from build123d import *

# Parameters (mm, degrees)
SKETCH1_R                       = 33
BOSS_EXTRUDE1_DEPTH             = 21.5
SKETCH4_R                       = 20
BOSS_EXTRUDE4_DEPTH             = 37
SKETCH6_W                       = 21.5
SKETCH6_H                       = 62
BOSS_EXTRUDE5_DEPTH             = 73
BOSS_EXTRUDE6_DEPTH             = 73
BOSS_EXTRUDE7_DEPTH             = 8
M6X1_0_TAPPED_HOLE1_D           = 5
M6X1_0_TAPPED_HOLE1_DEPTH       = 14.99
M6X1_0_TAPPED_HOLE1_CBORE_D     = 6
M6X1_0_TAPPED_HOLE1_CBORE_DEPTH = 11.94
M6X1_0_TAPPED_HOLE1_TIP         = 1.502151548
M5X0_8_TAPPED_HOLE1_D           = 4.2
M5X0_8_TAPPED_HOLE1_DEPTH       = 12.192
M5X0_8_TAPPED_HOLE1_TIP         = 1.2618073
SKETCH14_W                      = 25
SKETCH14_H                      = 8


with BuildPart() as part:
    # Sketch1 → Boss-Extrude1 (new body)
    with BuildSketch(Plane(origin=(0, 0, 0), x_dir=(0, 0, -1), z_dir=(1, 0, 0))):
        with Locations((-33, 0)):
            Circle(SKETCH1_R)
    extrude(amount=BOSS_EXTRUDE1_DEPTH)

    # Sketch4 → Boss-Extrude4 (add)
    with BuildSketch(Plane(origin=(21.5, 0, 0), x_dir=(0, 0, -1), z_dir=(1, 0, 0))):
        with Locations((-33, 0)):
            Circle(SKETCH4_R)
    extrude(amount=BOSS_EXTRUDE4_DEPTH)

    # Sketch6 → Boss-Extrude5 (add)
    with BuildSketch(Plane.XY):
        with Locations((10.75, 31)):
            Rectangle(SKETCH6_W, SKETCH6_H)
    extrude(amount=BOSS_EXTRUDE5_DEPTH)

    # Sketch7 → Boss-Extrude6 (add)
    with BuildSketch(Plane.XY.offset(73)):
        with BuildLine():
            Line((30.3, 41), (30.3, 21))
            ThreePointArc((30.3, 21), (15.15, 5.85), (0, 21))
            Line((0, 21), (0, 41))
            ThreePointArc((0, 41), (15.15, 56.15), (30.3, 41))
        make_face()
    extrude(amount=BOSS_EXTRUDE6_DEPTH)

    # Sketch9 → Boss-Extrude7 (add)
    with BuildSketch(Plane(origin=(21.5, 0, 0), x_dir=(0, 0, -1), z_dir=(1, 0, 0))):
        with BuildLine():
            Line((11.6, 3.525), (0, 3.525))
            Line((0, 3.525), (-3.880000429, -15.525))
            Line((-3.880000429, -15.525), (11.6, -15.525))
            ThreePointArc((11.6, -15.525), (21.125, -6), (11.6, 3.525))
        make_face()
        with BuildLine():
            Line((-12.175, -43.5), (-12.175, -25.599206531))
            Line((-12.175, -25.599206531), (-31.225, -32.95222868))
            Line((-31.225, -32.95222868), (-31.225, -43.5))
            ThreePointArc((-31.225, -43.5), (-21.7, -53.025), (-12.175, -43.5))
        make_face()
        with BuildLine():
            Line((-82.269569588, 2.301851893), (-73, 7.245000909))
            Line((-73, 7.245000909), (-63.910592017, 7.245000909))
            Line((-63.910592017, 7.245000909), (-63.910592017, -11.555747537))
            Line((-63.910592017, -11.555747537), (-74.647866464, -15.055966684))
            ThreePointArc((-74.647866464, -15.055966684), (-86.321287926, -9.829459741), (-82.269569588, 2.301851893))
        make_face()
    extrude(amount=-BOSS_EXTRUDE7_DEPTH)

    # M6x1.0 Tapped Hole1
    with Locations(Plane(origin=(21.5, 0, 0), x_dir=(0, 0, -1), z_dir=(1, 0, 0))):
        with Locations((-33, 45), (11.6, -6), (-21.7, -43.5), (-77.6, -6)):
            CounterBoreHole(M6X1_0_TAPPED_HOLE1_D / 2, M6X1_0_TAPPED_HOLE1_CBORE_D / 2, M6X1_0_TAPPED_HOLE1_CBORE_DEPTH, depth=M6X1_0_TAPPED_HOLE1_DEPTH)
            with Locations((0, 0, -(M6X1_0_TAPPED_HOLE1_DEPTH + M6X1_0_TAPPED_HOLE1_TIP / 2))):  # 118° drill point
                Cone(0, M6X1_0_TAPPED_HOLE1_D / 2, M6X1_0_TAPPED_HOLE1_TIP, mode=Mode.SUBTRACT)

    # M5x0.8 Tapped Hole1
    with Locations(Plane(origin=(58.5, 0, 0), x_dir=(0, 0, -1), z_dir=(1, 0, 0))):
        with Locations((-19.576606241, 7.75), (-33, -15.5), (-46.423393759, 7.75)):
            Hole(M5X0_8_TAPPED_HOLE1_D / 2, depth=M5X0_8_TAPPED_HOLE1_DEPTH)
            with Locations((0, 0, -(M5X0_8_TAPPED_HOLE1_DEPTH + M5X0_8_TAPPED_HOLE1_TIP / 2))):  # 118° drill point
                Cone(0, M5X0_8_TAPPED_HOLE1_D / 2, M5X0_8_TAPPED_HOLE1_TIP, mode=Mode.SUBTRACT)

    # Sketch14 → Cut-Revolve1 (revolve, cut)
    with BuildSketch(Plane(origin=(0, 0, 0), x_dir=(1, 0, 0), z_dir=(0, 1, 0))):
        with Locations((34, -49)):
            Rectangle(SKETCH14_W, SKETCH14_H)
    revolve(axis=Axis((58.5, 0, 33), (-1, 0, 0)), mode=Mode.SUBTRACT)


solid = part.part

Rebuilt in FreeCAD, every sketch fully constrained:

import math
import FreeCAD as App
import Part
import Sketcher
from FreeCAD import Vector
Q = App.Units.Quantity

doc = App.newDocument("Part")
body = doc.addObject("PartDesign::Body", "Body")

# Sketch on YZ plane
sketch1 = body.newObject("Sketcher::SketchObject", "Sketch")
sketch1.AttachmentSupport = (doc.getObject("YZ_Plane"), [""])
sketch1.MapMode = "FlatFace"
sketch1.addGeometry(Part.Circle(Vector(0, 33, 0), Vector(0, 0, 1), 33), False)
sketch1.addConstraint([
    Sketcher.Constraint("PointOnObject", 0, 3, -2),
    Sketcher.Constraint("Diameter", 0, Q("66 mm")),
    Sketcher.Constraint("DistanceY", -1, 1, 0, 3, Q("33 mm")),
])
pad1 = body.newObject("PartDesign::Pad", "Pad")
pad1.Profile = sketch1
pad1.Length = 21.5

# Sketch on YZ plane
sketch2 = body.newObject("Sketcher::SketchObject", "Sketch001")
sketch2.AttachmentSupport = (doc.getObject("YZ_Plane"), [""])
sketch2.MapMode = "FlatFace"
sketch2.AttachmentOffset = App.Placement(Vector(0, 0, 21.5), App.Rotation())
sketch2.addGeometry(Part.Circle(Vector(0, 33, 0), Vector(0, 0, 1), 20), False)
sketch2.addConstraint([
    Sketcher.Constraint("PointOnObject", 0, 3, -2),
    Sketcher.Constraint("Diameter", 0, Q("40 mm")),
    Sketcher.Constraint("DistanceY", -1, 1, 0, 3, Q("33 mm")),
])
pad2 = body.newObject("PartDesign::Pad", "Pad001")
pad2.Profile = sketch2
pad2.Length = 37

# Sketch on XY plane
sketch3 = body.newObject("Sketcher::SketchObject", "Sketch002")
sketch3.AttachmentSupport = (doc.getObject("XY_Plane"), [""])
sketch3.MapMode = "FlatFace"
sketch3.addGeometry([
    Part.LineSegment(Vector(0, 62, 0), Vector(0, 0, 0)),
    Part.LineSegment(Vector(0, 0, 0), Vector(21.5, 0, 0)),
    Part.LineSegment(Vector(21.5, 0, 0), Vector(21.5, 62, 0)),
    Part.LineSegment(Vector(21.5, 62, 0), Vector(0, 62, 0)),
], False)
sketch3.addConstraint([
    Sketcher.Constraint("Coincident", 0, 2, 1, 1),
    Sketcher.Constraint("Coincident", 1, 2, 2, 1),
    Sketcher.Constraint("Coincident", 2, 2, 3, 1),
    Sketcher.Constraint("Coincident", 3, 2, 0, 1),
    Sketcher.Constraint("Vertical", 0),
    Sketcher.Constraint("Horizontal", 1),
    Sketcher.Constraint("Vertical", 2),
    Sketcher.Constraint("Horizontal", 3),
    Sketcher.Constraint("Coincident", 0, 2, -1, 1),
    Sketcher.Constraint("DistanceY", 0, 2, 0, 1, Q("62 mm")),
    Sketcher.Constraint("DistanceX", 1, 1, 1, 2, Q("21.5 mm")),
])
pad3 = body.newObject("PartDesign::Pad", "Pad002")
pad3.Profile = sketch3
pad3.Length = 73

# Sketch on XY plane
sketch4 = body.newObject("Sketcher::SketchObject", "Sketch003")
sketch4.AttachmentSupport = (doc.getObject("XY_Plane"), [""])
sketch4.MapMode = "FlatFace"
sketch4.AttachmentOffset = App.Placement(Vector(0, 0, 73), App.Rotation())
sketch4.addGeometry([
    Part.LineSegment(Vector(30.3, 21, 0), Vector(30.3, 41, 0)),
    Part.ArcOfCircle(Part.Circle(Vector(15.15, 41, 0), Vector(0, 0, 1), 15.15), math.radians(0), math.radians(180)),
    Part.LineSegment(Vector(0, 41, 0), Vector(0, 21, 0)),
    Part.ArcOfCircle(Part.Circle(Vector(15.15, 21, 0), Vector(0, 0, 1), 15.15), math.radians(180), math.radians(360)),
], False)
sketch4.addConstraint([
    Sketcher.Constraint("Tangent", 0, 2, 1, 1),
    Sketcher.Constraint("Tangent", 1, 2, 2, 1),
    Sketcher.Constraint("Tangent", 2, 2, 3, 1),
    Sketcher.Constraint("Tangent", 3, 2, 0, 1),
    Sketcher.Constraint("Vertical", 0),
    Sketcher.Constraint("Vertical", 2),
    Sketcher.Constraint("PointOnObject", 1, 2, -2),
    Sketcher.Constraint("DistanceY", 0, 1, 0, 2, Q("20 mm")),
    Sketcher.Constraint("Radius", 1, Q("15.15 mm")),
    Sketcher.Constraint("DistanceY", -1, 1, 1, 3, Q("41 mm")),
])
pad4 = body.newObject("PartDesign::Pad", "Pad003")
pad4.Profile = sketch4
pad4.Length = 73

# Sketch on YZ plane
sketch5 = body.newObject("Sketcher::SketchObject", "Sketch004")
sketch5.AttachmentSupport = (doc.getObject("YZ_Plane"), [""])
sketch5.MapMode = "FlatFace"
sketch5.AttachmentOffset = App.Placement(Vector(0, 0, 21.5), App.Rotation())
sketch5.addGeometry([
    Part.LineSegment(Vector(3.525, -11.6, 0), Vector(3.525, 0, 0)),  # 0
    Part.LineSegment(Vector(3.525, 0, 0), Vector(-15.525, 3.88, 0)),  # 1
    Part.LineSegment(Vector(-15.525, 3.88, 0), Vector(-15.525, -11.6, 0)),  # 2
    Part.ArcOfCircle(Part.Circle(Vector(-6, -11.6, 0), Vector(0, 0, 1), 9.525), math.radians(180), math.radians(360)),  # 3
    Part.LineSegment(Vector(-43.5, 12.175, 0), Vector(-25.599207, 12.175, 0)),  # 4
    Part.LineSegment(Vector(-25.599207, 12.175, 0), Vector(-32.952229, 31.225, 0)),  # 5
    Part.LineSegment(Vector(-32.952229, 31.225, 0), Vector(-43.5, 31.225, 0)),  # 6
    Part.ArcOfCircle(Part.Circle(Vector(-43.5, 21.7, 0), Vector(0, 0, 1), 9.525), math.radians(90), math.radians(270)),  # 7
    Part.LineSegment(Vector(7.245001, 73, 0), Vector(2.301852, 82.26957, 0)),  # 8
    Part.ArcOfCircle(Part.Circle(Vector(-6, 77.6, 0), Vector(0, 0, 1), 9.525), math.radians(29.356589), math.radians(198.05533)),  # 9
    Part.LineSegment(Vector(-15.055967, 74.647866, 0), Vector(-11.555748, 63.910592, 0)),  # 10
    Part.LineSegment(Vector(-11.555748, 63.910592, 0), Vector(7.245001, 63.910592, 0)),  # 11
    Part.LineSegment(Vector(7.245001, 63.910592, 0), Vector(7.245001, 73, 0)),  # 12
], False)
sketch5.addConstraint([
    Sketcher.Constraint("Coincident", 0, 2, 1, 1),
    Sketcher.Constraint("Coincident", 1, 2, 2, 1),
    Sketcher.Constraint("Tangent", 2, 2, 3, 1),
    Sketcher.Constraint("Tangent", 3, 2, 0, 1),
    Sketcher.Constraint("Coincident", 4, 2, 5, 1),
    Sketcher.Constraint("Coincident", 5, 2, 6, 1),
    Sketcher.Constraint("Tangent", 6, 2, 7, 1),
    Sketcher.Constraint("Tangent", 7, 2, 4, 1),
    Sketcher.Constraint("Coincident", 8, 2, 9, 1),
    Sketcher.Constraint("Tangent", 9, 2, 10, 1),
    Sketcher.Constraint("Coincident", 10, 2, 11, 1),
    Sketcher.Constraint("Coincident", 11, 2, 12, 1),
    Sketcher.Constraint("Coincident", 12, 2, 8, 1),
    Sketcher.Constraint("Vertical", 0),
    Sketcher.Constraint("Vertical", 2),
    Sketcher.Constraint("Horizontal", 4),
    Sketcher.Constraint("Horizontal", 6),
    Sketcher.Constraint("Horizontal", 11),
    Sketcher.Constraint("Vertical", 12),
    Sketcher.Constraint("Equal", 3, 7),
    Sketcher.Constraint("Equal", 7, 9),
    Sketcher.Constraint("PointOnObject", 0, 2, -1),
    Sketcher.Constraint("Vertical", 3, 3, 9, 3),
    Sketcher.Constraint("DistanceY", 0, 1, 0, 2, Q("11.6 mm")),
    Sketcher.Constraint("DistanceX", 3, 3, -1, 1, Q("6 mm")),
    Sketcher.Constraint("DistanceY", -1, 1, 12, 2, Q("73 mm")),
    Sketcher.Constraint("Radius", 3, Q("9.525 mm")),
    Sketcher.Constraint("DistanceY", 2, 2, 2, 1, Q("15.48 mm")),
    Sketcher.Constraint("DistanceX", 7, 3, -1, 1, Q("43.5 mm")),
    Sketcher.Constraint("DistanceY", -1, 1, 7, 3, Q("21.7 mm")),
    Sketcher.Constraint("DistanceY", -1, 1, 9, 3, Q("77.6 mm")),
    Sketcher.Constraint("DistanceX", -1, 1, 11, 2, Q("7.245001 mm")),
    Sketcher.Constraint("DistanceX", 6, 2, 6, 1, Q("10.547771 mm")),
    Sketcher.Constraint("DistanceX", 11, 1, 11, 2, Q("18.800748 mm")),
    Sketcher.Constraint("DistanceX", 10, 2, 8, 2, Q("13.857599 mm")),
    Sketcher.Constraint("Distance", 5, Q("20.419829 mm")),
    Sketcher.Constraint("DistanceY", 12, 1, 12, 2, Q("9.089408 mm")),
])
pad5 = body.newObject("PartDesign::Pad", "Pad004")
pad5.Profile = sketch5
pad5.Length = 8
pad5.Reversed = True

# Sketch on YZ plane
sketch6 = body.newObject("Sketcher::SketchObject", "Sketch005")
sketch6.AttachmentSupport = (doc.getObject("YZ_Plane"), [""])
sketch6.MapMode = "FlatFace"
sketch6.AttachmentOffset = App.Placement(Vector(0, 0, 21.5), App.Rotation())
sketch6.addGeometry([
    Part.Circle(Vector(45, 33, 0), Vector(0, 0, 1), 2.5),
    Part.Circle(Vector(-6, -11.6, 0), Vector(0, 0, 1), 2.5),
    Part.Circle(Vector(-43.5, 21.7, 0), Vector(0, 0, 1), 2.5),
    Part.Circle(Vector(-6, 77.6, 0), Vector(0, 0, 1), 2.5),
], False)
sketch6.addConstraint([
    Sketcher.Constraint("Equal", 0, 1),
    Sketcher.Constraint("Equal", 1, 2),
    Sketcher.Constraint("Equal", 2, 3),
    Sketcher.Constraint("Vertical", 1, 3, 3, 3),
    Sketcher.Constraint("Diameter", 0, Q("5 mm")),
    Sketcher.Constraint("DistanceX", -1, 1, 0, 3, Q("45 mm")),
    Sketcher.Constraint("DistanceY", -1, 1, 0, 3, Q("33 mm")),
    Sketcher.Constraint("DistanceX", 1, 3, -1, 1, Q("6 mm")),
    Sketcher.Constraint("DistanceY", 1, 3, -1, 1, Q("11.6 mm")),
    Sketcher.Constraint("DistanceX", 2, 3, -1, 1, Q("43.5 mm")),
    Sketcher.Constraint("DistanceY", -1, 1, 2, 3, Q("21.7 mm")),
    Sketcher.Constraint("DistanceY", -1, 1, 3, 3, Q("77.6 mm")),
])
doc.recompute()
hole = body.newObject("PartDesign::Hole", "Hole")
hole.Profile = sketch6
hole.ThreadType = "None"
hole.Diameter = 5
hole.DepthType = "Dimension"
hole.Depth = 14.99
hole.DrillPoint = "Angled"
hole.DrillPointAngle = 118
hole.HoleCutType = "Counterbore"
hole.HoleCutDiameter = 6
hole.HoleCutDepth = 11.94

# Sketch on YZ plane
sketch7 = body.newObject("Sketcher::SketchObject", "Sketch006")
sketch7.AttachmentSupport = (doc.getObject("YZ_Plane"), [""])
sketch7.MapMode = "FlatFace"
sketch7.AttachmentOffset = App.Placement(Vector(0, 0, 58.5), App.Rotation())
sketch7.addGeometry([
    Part.Circle(Vector(7.75, 19.576606, 0), Vector(0, 0, 1), 2.1),
    Part.Circle(Vector(-15.5, 33, 0), Vector(0, 0, 1), 2.1),
    Part.Circle(Vector(7.75, 46.423394, 0), Vector(0, 0, 1), 2.1),
], False)
sketch7.addConstraint([
    Sketcher.Constraint("Equal", 0, 1),
    Sketcher.Constraint("Equal", 1, 2),
    Sketcher.Constraint("Vertical", 0, 3, 2, 3),
    Sketcher.Constraint("Diameter", 0, Q("4.2 mm")),
    Sketcher.Constraint("DistanceY", -1, 1, 1, 3, Q("33 mm")),
    Sketcher.Constraint("DistanceX", 1, 3, -1, 1, Q("15.5 mm")),
    Sketcher.Constraint("DistanceX", -1, 1, 0, 3, Q("7.75 mm")),
    Sketcher.Constraint("DistanceY", -1, 1, 0, 3, Q("19.576606 mm")),
    Sketcher.Constraint("DistanceY", -1, 1, 2, 3, Q("46.423394 mm")),
])
doc.recompute()
hole2 = body.newObject("PartDesign::Hole", "Hole001")
hole2.Profile = sketch7
hole2.ThreadType = "None"
hole2.Diameter = 4.2
hole2.DepthType = "Dimension"
hole2.Depth = 12.192
hole2.DrillPoint = "Angled"
hole2.DrillPointAngle = 118

# Sketch on XZ plane
sketch8 = body.newObject("Sketcher::SketchObject", "Sketch007")
sketch8.AttachmentSupport = (doc.getObject("XZ_Plane"), [""])
sketch8.MapMode = "FlatFace"
sketch8.addGeometry([
    Part.LineSegment(Vector(21.5, 45, 0), Vector(21.5, 53, 0)),
    Part.LineSegment(Vector(21.5, 53, 0), Vector(46.5, 53, 0)),
    Part.LineSegment(Vector(46.5, 53, 0), Vector(46.5, 45, 0)),
    Part.LineSegment(Vector(46.5, 45, 0), Vector(21.5, 45, 0)),
], False)
sketch8.addGeometry(Part.LineSegment(Vector(46.5, 33, 0), Vector(21.5, 33, 0)), True)  # axis
sketch8.addConstraint([
    Sketcher.Constraint("Coincident", 0, 2, 1, 1),
    Sketcher.Constraint("Coincident", 1, 2, 2, 1),
    Sketcher.Constraint("Coincident", 2, 2, 3, 1),
    Sketcher.Constraint("Coincident", 3, 2, 0, 1),
    Sketcher.Constraint("Vertical", 0),
    Sketcher.Constraint("Horizontal", 1),
    Sketcher.Constraint("Vertical", 2),
    Sketcher.Constraint("Horizontal", 3),
    Sketcher.Constraint("Horizontal", 4),
    Sketcher.Constraint("Vertical", 2, 2, 4, 1),
    Sketcher.Constraint("Vertical", 3, 2, 4, 2),
    Sketcher.Constraint("DistanceX", 1, 1, 1, 2, Q("25 mm")),
    Sketcher.Constraint("DistanceY", 0, 1, 0, 2, Q("8 mm")),
    Sketcher.Constraint("DistanceY", -1, 1, 0, 2, Q("53 mm")),
    Sketcher.Constraint("DistanceY", -1, 1, 4, 1, Q("33 mm")),
    Sketcher.Constraint("DistanceX", -1, 1, 0, 2, Q("21.5 mm")),
])
groove = body.newObject("PartDesign::Groove", "Groove")
groove.Profile = sketch8
groove.ReferenceAxis = (sketch8, ["Axis0"])
groove.Angle = 360

doc.recompute()
